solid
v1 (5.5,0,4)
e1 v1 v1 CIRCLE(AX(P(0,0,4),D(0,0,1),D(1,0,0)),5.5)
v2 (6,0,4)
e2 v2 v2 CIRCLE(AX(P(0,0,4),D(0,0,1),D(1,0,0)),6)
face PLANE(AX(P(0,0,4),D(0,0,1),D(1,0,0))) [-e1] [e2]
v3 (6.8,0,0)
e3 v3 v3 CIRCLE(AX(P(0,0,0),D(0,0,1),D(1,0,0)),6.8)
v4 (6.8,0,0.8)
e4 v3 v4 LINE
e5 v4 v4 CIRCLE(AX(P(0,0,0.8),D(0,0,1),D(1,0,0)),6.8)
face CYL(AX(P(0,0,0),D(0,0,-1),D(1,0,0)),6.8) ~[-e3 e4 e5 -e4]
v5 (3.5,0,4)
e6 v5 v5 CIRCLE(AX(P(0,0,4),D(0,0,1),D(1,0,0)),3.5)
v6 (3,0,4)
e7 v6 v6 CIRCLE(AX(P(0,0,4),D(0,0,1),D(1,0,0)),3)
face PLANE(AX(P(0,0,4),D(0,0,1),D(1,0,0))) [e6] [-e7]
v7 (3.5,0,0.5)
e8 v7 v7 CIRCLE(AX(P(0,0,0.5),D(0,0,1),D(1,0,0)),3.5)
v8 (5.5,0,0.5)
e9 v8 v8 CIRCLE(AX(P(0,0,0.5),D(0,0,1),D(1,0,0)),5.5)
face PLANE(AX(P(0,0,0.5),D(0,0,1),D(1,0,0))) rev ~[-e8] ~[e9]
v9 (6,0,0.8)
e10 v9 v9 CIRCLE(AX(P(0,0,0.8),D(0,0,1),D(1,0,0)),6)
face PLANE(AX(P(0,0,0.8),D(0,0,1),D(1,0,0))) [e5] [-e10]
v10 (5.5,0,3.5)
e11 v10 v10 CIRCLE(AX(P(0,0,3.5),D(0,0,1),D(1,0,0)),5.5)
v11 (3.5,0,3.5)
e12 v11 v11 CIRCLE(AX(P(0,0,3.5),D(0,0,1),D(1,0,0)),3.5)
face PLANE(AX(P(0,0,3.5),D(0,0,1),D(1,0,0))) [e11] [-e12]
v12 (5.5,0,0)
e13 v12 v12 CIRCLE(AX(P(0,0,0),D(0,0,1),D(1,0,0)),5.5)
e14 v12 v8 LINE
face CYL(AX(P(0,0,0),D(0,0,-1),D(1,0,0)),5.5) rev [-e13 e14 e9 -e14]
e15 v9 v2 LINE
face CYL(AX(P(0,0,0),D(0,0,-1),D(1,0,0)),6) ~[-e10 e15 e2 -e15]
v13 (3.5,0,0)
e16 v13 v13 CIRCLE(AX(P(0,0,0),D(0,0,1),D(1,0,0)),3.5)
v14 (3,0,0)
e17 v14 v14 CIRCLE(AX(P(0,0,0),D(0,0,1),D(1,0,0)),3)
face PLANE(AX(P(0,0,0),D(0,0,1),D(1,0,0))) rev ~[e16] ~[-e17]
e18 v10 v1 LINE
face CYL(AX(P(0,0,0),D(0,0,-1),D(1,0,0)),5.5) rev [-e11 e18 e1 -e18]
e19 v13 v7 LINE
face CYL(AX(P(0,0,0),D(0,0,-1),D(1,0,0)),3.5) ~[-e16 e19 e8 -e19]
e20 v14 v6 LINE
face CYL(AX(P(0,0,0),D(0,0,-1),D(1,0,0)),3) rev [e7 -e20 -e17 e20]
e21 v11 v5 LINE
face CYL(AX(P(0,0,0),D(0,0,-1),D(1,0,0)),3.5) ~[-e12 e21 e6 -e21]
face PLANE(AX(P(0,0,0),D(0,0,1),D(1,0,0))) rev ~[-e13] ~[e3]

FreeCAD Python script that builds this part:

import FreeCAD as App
import Part
import Sketcher
Q = App.Units.Quantity

doc = App.newDocument("Part")
body = doc.addObject("PartDesign::Body", "Body")
body.AllowCompound = True

sketch1 = body.newObject("Sketcher::SketchObject", "Sketch")
sketch1.AttachmentSupport = (doc.getObject("XY_Plane"), [""])
sketch1.MapMode = "FlatFace"
sketch1.addGeometry(Part.Circle(App.Vector(0, 0, 0), App.Vector(0, 0, 1), 6.8), False)
sketch1.addGeometry(Part.Circle(App.Vector(0, 0, 0), App.Vector(0, 0, 1), 6), False)
sketch1.addConstraint(Sketcher.Constraint("Coincident", 0, 3, -1, 1))
sketch1.addConstraint(Sketcher.Constraint("Coincident", 1, 3, -1, 1))
sketch1.addConstraint(Sketcher.Constraint("Diameter", 1, Q("12 mm")))
sketch1.addConstraint(Sketcher.Constraint("Diameter", 0, Q("13.6 mm")))
pad1 = body.newObject("PartDesign::Pad", "Pad")
pad1.Profile = sketch1
pad1.Length = 0.8

sketch2 = body.newObject("Sketcher::SketchObject", "Sketch001")
sketch2.AttachmentSupport = (doc.getObject("XY_Plane"), [""])
sketch2.MapMode = "FlatFace"
sketch2.addGeometry(Part.Circle(App.Vector(0, 0, 0), App.Vector(0, 0, 1), 6), False)
sketch2.addGeometry(Part.Circle(App.Vector(0, 0, 0), App.Vector(0, 0, 1), 5.5), False)
sketch2.addGeometry(Part.Circle(App.Vector(0, 0, 0), App.Vector(0, 0, 1), 3.5), False)
sketch2.addGeometry(Part.Circle(App.Vector(0, 0, 0), App.Vector(0, 0, 1), 3), False)
sketch2.addConstraint(Sketcher.Constraint("Coincident", 0, 3, -1, 1))
sketch2.addConstraint(Sketcher.Constraint("Coincident", 1, 3, -1, 1))
sketch2.addConstraint(Sketcher.Constraint("Coincident", 2, 3, -1, 1))
sketch2.addConstraint(Sketcher.Constraint("Coincident", 3, 3, -1, 1))
sketch2.addConstraint(Sketcher.Constraint("Diameter", 0, Q("12 mm")))
sketch2.addConstraint(Sketcher.Constraint("Diameter", 3, Q("6 mm")))
sketch2.addConstraint(Sketcher.Constraint("Diameter", 1, Q("11 mm")))
sketch2.addConstraint(Sketcher.Constraint("Diameter", 2, Q("7 mm")))
pad2 = body.newObject("PartDesign::Pad", "Pad001")
pad2.Profile = sketch2
pad2.Length = 4

sketch3 = body.newObject("Sketcher::SketchObject", "Sketch002")
sketch3.AttachmentSupport = (doc.getObject("XY_Plane"), [""])
sketch3.MapMode = "FlatFace"
sketch3.addGeometry(Part.Circle(App.Vector(0, 0, 0), App.Vector(0, 0, 1), 5.5), False)
sketch3.addGeometry(Part.Circle(App.Vector(0, 0, 0), App.Vector(0, 0, 1), 3.5), False)
sketch3.addConstraint(Sketcher.Constraint("Coincident", 0, 3, -1, 1))
sketch3.addConstraint(Sketcher.Constraint("Coincident", 1, 3, -1, 1))
sketch3.addConstraint(Sketcher.Constraint("Diameter", 0, Q("11 mm")))
sketch3.addConstraint(Sketcher.Constraint("Diameter", 1, Q("7 mm")))
pad3 = body.newObject("PartDesign::Pad", "Pad002")
pad3.Profile = sketch3
pad3.Length = 3.5

sketch4 = body.newObject("Sketcher::SketchObject", "Sketch003")
sketch4.AttachmentSupport = (doc.getObject("XY_Plane"), [""])
sketch4.MapMode = "FlatFace"
sketch4.addGeometry(Part.Circle(App.Vector(0, 0, 0), App.Vector(0, 0, 1), 5.5), False)
sketch4.addGeometry(Part.Circle(App.Vector(0, 0, 0), App.Vector(0, 0, 1), 3.5), False)
sketch4.addConstraint(Sketcher.Constraint("Coincident", 0, 3, -1, 1))
sketch4.addConstraint(Sketcher.Constraint("Coincident", 1, 3, -1, 1))
sketch4.addConstraint(Sketcher.Constraint("Diameter", 0, Q("11 mm")))
sketch4.addConstraint(Sketcher.Constraint("Diameter", 1, Q("7 mm")))
pocket1 = body.newObject("PartDesign::Pocket", "Pocket")
pocket1.Profile = sketch4
pocket1.Length = 0.5
pocket1.Reversed = True

doc.recompute()
